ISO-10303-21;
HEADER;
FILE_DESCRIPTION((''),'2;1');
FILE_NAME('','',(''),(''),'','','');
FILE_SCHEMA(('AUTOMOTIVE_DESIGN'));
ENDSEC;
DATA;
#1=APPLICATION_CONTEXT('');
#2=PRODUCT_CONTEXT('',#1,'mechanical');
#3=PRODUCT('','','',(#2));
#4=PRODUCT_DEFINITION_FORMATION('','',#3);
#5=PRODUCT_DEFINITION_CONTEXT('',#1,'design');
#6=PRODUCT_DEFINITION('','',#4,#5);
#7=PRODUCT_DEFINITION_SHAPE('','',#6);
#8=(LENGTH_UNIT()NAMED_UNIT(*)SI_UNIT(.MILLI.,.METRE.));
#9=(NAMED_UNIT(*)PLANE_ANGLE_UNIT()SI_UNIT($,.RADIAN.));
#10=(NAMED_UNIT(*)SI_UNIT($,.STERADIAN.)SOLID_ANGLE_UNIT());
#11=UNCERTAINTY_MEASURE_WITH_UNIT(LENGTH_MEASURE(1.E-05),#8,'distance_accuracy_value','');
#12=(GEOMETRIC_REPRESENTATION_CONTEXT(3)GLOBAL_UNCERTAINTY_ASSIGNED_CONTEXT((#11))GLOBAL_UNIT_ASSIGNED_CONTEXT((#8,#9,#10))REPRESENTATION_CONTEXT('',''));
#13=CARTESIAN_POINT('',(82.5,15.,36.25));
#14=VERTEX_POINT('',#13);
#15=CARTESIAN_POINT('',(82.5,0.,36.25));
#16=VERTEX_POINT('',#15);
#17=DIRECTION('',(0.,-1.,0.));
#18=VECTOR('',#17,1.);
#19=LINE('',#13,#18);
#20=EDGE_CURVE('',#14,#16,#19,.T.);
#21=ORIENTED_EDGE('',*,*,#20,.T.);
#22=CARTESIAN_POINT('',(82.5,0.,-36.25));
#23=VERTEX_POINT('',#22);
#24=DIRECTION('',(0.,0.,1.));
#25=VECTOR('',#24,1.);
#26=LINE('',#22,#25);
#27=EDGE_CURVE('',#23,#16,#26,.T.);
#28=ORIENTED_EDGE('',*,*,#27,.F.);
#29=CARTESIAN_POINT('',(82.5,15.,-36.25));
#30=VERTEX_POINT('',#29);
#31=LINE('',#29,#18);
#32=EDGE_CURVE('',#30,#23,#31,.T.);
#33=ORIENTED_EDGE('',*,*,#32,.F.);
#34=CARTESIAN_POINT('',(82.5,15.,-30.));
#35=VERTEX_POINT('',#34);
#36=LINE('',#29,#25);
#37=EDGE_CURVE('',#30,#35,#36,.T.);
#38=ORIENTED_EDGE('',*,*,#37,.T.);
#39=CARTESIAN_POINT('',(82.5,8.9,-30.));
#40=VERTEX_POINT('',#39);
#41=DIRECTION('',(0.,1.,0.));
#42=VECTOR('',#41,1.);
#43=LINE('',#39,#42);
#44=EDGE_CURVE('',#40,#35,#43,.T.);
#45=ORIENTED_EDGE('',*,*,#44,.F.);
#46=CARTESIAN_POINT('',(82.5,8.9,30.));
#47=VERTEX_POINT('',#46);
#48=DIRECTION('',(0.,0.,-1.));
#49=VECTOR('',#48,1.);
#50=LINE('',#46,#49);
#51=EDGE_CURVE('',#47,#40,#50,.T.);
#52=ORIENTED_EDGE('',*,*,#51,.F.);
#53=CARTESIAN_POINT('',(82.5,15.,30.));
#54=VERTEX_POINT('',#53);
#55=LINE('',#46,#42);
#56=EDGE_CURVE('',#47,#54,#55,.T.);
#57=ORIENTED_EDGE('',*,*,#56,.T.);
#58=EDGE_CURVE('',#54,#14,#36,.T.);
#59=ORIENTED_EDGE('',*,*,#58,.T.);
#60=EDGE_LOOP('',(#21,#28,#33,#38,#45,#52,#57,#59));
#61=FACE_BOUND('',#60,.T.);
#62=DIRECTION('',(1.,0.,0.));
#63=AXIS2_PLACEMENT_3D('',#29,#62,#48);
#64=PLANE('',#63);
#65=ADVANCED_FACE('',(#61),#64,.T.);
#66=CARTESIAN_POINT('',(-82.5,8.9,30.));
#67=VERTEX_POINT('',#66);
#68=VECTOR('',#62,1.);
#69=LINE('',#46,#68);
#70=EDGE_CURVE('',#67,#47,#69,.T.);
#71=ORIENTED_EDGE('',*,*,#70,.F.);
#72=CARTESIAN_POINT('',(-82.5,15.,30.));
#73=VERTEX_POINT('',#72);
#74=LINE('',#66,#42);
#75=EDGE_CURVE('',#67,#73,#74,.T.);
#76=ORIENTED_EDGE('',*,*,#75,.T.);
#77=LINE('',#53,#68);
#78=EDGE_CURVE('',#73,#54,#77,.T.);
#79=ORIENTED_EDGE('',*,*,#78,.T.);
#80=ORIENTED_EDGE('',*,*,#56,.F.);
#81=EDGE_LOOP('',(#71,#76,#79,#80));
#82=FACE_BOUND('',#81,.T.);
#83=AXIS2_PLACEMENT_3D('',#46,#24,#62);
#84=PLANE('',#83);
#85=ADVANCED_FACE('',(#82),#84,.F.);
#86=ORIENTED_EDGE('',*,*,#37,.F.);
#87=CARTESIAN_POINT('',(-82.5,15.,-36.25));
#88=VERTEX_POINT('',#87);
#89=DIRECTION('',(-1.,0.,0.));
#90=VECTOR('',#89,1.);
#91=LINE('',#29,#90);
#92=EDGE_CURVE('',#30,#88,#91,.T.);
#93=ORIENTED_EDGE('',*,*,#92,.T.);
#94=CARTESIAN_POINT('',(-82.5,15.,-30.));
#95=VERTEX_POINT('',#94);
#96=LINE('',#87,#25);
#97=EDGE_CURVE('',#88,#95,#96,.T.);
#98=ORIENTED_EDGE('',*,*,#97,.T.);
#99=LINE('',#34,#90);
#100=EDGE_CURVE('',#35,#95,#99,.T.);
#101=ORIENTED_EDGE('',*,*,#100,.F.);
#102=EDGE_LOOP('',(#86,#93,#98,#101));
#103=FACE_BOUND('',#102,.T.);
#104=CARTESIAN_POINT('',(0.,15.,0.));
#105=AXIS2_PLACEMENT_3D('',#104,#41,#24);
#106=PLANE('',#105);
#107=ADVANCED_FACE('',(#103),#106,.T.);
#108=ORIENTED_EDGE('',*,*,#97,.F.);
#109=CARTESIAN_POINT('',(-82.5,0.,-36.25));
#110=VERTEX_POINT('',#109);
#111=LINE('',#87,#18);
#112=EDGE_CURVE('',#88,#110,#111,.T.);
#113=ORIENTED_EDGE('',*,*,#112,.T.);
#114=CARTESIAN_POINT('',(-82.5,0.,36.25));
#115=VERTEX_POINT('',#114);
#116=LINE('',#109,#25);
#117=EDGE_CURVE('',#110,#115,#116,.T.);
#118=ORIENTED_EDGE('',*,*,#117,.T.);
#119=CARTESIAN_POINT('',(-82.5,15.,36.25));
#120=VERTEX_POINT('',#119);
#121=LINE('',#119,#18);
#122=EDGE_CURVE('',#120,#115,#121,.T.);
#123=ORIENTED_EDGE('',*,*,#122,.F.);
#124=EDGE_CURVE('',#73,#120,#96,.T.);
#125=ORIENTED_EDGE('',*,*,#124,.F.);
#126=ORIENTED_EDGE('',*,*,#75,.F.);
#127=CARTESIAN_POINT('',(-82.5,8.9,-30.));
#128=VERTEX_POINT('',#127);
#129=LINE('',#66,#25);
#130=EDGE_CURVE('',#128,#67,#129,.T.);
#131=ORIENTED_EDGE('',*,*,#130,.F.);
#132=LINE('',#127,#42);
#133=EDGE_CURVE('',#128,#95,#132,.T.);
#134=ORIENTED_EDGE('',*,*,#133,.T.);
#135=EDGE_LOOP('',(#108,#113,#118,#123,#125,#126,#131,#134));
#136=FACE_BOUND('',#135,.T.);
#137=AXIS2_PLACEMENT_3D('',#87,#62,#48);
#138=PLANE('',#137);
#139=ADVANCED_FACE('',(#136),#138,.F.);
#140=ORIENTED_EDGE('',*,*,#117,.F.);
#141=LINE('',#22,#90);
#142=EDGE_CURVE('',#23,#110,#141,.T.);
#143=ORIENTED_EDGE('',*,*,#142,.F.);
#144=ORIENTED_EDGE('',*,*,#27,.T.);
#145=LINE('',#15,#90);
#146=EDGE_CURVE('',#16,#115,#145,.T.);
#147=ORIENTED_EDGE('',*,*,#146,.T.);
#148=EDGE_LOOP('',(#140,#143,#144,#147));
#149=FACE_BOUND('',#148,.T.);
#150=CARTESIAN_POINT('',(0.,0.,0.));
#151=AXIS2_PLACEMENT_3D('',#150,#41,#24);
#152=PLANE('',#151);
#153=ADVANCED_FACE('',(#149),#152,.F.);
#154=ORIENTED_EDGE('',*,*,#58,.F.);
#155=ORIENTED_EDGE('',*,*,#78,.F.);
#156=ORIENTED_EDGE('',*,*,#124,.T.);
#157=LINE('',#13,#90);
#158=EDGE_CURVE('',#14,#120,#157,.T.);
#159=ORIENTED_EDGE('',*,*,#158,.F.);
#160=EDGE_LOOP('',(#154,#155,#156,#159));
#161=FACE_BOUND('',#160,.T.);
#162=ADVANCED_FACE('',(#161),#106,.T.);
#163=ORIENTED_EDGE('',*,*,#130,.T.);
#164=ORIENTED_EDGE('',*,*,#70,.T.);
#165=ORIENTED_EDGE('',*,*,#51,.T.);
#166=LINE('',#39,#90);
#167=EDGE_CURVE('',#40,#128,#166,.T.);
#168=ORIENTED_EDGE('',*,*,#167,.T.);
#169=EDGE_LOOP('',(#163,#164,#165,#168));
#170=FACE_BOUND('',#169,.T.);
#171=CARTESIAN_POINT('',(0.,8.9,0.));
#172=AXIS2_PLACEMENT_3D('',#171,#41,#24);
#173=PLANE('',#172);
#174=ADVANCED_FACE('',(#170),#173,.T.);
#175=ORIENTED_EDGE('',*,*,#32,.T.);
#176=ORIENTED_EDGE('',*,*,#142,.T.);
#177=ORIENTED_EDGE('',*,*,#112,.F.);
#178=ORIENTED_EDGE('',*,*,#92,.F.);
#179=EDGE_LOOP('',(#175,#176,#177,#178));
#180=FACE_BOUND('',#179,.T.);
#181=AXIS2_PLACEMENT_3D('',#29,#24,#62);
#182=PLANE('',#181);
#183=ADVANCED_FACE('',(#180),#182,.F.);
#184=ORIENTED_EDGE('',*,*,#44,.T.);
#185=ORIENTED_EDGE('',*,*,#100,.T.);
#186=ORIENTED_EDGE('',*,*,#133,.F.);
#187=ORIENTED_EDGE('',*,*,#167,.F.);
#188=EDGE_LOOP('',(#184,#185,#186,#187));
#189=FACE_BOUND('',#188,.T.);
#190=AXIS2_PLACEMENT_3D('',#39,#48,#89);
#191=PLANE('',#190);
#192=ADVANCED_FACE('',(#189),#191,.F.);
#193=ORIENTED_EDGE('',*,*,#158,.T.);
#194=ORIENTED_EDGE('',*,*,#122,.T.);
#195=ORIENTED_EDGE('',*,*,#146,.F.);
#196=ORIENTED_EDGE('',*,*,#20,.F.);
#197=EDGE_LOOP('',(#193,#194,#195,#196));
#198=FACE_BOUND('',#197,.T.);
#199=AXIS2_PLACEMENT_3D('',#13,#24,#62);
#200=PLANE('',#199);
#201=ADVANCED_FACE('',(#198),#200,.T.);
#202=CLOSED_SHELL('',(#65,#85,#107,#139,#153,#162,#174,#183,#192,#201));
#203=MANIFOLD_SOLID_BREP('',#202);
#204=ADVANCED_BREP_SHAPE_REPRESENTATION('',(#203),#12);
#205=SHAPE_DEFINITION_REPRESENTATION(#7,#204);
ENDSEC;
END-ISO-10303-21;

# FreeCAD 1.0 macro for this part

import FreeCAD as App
import Part
import Sketcher


def add_polygon(sketch, points):
    """Adds a closed chain of lines whose ends are joined by coincident constraints."""
    first, n = sketch.GeometryCount, len(points)
    for a, b in zip(points, points[1:] + points[:1]):
        sketch.addGeometry(Part.LineSegment(App.Vector(*a, 0), App.Vector(*b, 0)), False)
    for i in range(n):
        sketch.addConstraint(Sketcher.Constraint("Coincident", first + i, 2, first + (i + 1) % n, 1))

doc = App.newDocument("Part")
body = doc.addObject("PartDesign::Body", "Body")

sketch1 = body.newObject("Sketcher::SketchObject", "Sketch")
sketch1.AttachmentSupport = (doc.getObject("XZ_Plane"), [""])
sketch1.MapMode = "FlatFace"
add_polygon(sketch1, [(-82, -36), (-82, 36), (82, 36), (82, -36)])
sketch1.addConstraint(Sketcher.Constraint("Vertical", 0))
sketch1.addConstraint(Sketcher.Constraint("Horizontal", 1))
sketch1.addConstraint(Sketcher.Constraint("Vertical", 2))
sketch1.addConstraint(Sketcher.Constraint("Horizontal", 3))
sketch1.addConstraint(Sketcher.Constraint("Symmetric", 0, 2, 2, 2, -1, 1))
sketch1.addConstraint(Sketcher.Constraint("DistanceX", 1, 1, 1, 2, 165.0))
sketch1.addConstraint(Sketcher.Constraint("DistanceY", 0, 1, 0, 2, 72.5))
pad1 = body.newObject("PartDesign::Pad", "Pad")
pad1.Profile = sketch1
pad1.Length = 15
pad1.Reversed = True

sketch2 = body.newObject("Sketcher::SketchObject", "Sketch001")
sketch2.AttachmentSupport = (doc.getObject("XZ_Plane"), [""])
sketch2.MapMode = "FlatFace"
sketch2.AttachmentOffset = App.Placement(App.Vector(0, 0, -15), App.Rotation())
add_polygon(sketch2, [(-82, -30), (-82, 30), (82, 30), (82, -30)])
sketch2.addConstraint(Sketcher.Constraint("Vertical", 0))
sketch2.addConstraint(Sketcher.Constraint("Horizontal", 1))
sketch2.addConstraint(Sketcher.Constraint("Vertical", 2))
sketch2.addConstraint(Sketcher.Constraint("Horizontal", 3))
sketch2.addConstraint(Sketcher.Constraint("Symmetric", 0, 2, 2, 2, -1, 1))
sketch2.addConstraint(Sketcher.Constraint("DistanceX", 1, 1, 1, 2, 165.0))
sketch2.addConstraint(Sketcher.Constraint("DistanceY", 0, 1, 0, 2, 60.0))
pocket1 = body.newObject("PartDesign::Pocket", "Pocket")
pocket1.Profile = sketch2
pocket1.Length = 6.1
pocket1.Reversed = True

doc.recompute()
